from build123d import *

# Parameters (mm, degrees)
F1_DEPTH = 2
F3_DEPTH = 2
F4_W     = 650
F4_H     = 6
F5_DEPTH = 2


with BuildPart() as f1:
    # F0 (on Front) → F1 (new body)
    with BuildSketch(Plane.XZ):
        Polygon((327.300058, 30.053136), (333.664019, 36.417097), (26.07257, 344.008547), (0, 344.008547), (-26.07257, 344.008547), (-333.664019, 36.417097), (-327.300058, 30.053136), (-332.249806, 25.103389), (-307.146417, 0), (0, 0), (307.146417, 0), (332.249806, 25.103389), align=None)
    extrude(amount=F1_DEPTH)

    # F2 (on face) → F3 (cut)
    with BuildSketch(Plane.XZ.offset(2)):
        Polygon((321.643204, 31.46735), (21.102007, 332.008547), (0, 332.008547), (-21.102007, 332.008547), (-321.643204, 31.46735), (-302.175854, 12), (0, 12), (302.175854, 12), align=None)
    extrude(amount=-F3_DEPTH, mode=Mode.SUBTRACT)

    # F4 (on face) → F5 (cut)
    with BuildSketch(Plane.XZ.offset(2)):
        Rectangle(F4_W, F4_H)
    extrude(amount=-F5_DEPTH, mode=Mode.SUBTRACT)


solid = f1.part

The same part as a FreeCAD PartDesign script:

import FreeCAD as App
import Part
import Sketcher

V = App.Vector

doc = App.newDocument("Part")
body = doc.addObject("PartDesign::Body", "Body")

sketch1 = doc.addObject("Sketcher::SketchObject", "Sketch")
body.addObject(sketch1)
sketch1.AttachmentSupport = (doc.XZ_Plane, [""])
sketch1.MapMode = "FlatFace"
sketch1.addGeometry([
    Part.LineSegment(V(327, 30, 0), V(334, 36, 0)),
    Part.LineSegment(V(334, 36, 0), V(26, 344, 0)),
    Part.LineSegment(V(26, 344, 0), V(-26, 344, 0)),
    Part.LineSegment(V(-26, 344, 0), V(-334, 36, 0)),
    Part.LineSegment(V(-334, 36, 0), V(-327, 30, 0)),
    Part.LineSegment(V(-327, 30, 0), V(-332, 25, 0)),
    Part.LineSegment(V(-332, 25, 0), V(-307, 0, 0)),
    Part.LineSegment(V(-307, 0, 0), V(307, 0, 0)),
    Part.LineSegment(V(307, 0, 0), V(332, 25, 0)),
    Part.LineSegment(V(332, 25, 0), V(327, 30, 0)),
], False)
sketch1.addConstraint([
    Sketcher.Constraint("Coincident", 0, 2, 1, 1),
    Sketcher.Constraint("Coincident", 1, 2, 2, 1),
    Sketcher.Constraint("Coincident", 2, 2, 3, 1),
    Sketcher.Constraint("Coincident", 3, 2, 4, 1),
    Sketcher.Constraint("Coincident", 4, 2, 5, 1),
    Sketcher.Constraint("Coincident", 5, 2, 6, 1),
    Sketcher.Constraint("Coincident", 6, 2, 7, 1),
    Sketcher.Constraint("Coincident", 7, 2, 8, 1),
    Sketcher.Constraint("Coincident", 8, 2, 9, 1),
    Sketcher.Constraint("Coincident", 9, 2, 0, 1),
    Sketcher.Constraint("Horizontal", 2),
    Sketcher.Constraint("Horizontal", 7),
    Sketcher.Constraint("Symmetric", 6, 2, 7, 2, -1, 1),
    Sketcher.Constraint("Symmetric", 0, 2, 3, 2, -2),
    Sketcher.Constraint("Symmetric", 5, 2, 8, 2, -2),
    Sketcher.Constraint("Symmetric", 4, 2, 9, 2, -2),
    Sketcher.Constraint("Perpendicular", 0, 1),
    Sketcher.Constraint("Perpendicular", 1, 3),
    Sketcher.Constraint("Perpendicular", 3, 4),
    Sketcher.Constraint("Perpendicular", 4, 5),
    Sketcher.Constraint("Perpendicular", 5, 6),
    Sketcher.Constraint("Distance", 0, 9.0),
    Sketcher.Constraint("Distance", 1, 435.0),
    Sketcher.Constraint("Distance", 5, 7.0),
    Sketcher.Constraint("DistanceX", 2, 2, 2, 1, 52.14514),
    Sketcher.Constraint("DistanceX", 7, 1, 7, 2, 614.292834),
])
pad1 = doc.addObject("PartDesign::Pad", "Pad")
body.addObject(pad1)
pad1.Profile = sketch1
pad1.Length = 2

sketch2 = doc.addObject("Sketcher::SketchObject", "Sketch001")
body.addObject(sketch2)
sketch2.AttachmentSupport = (doc.XZ_Plane, [""])
sketch2.MapMode = "FlatFace"
sketch2.AttachmentOffset = App.Placement(V(0, 0, 2), App.Rotation())
sketch2.addGeometry([
    Part.LineSegment(V(322, 31, 0), V(21, 332, 0)),
    Part.LineSegment(V(21, 332, 0), V(-21, 332, 0)),
    Part.LineSegment(V(-21, 332, 0), V(-322, 31, 0)),
    Part.LineSegment(V(-322, 31, 0), V(-302, 12, 0)),
    Part.LineSegment(V(-302, 12, 0), V(302, 12, 0)),
    Part.LineSegment(V(302, 12, 0), V(322, 31, 0)),
], False)
sketch2.addConstraint([
    Sketcher.Constraint("Coincident", 0, 2, 1, 1),
    Sketcher.Constraint("Coincident", 1, 2, 2, 1),
    Sketcher.Constraint("Coincident", 2, 2, 3, 1),
    Sketcher.Constraint("Coincident", 3, 2, 4, 1),
    Sketcher.Constraint("Coincident", 4, 2, 5, 1),
    Sketcher.Constraint("Coincident", 5, 2, 0, 1),
    Sketcher.Constraint("Horizontal", 1),
    Sketcher.Constraint("Horizontal", 4),
    Sketcher.Constraint("Symmetric", 2, 2, 5, 2, -2),
    Sketcher.Constraint("Perpendicular", 0, 2),
    Sketcher.Constraint("Perpendicular", 2, 3),
    Sketcher.Constraint("Perpendicular", 3, 5),
    Sketcher.Constraint("Equal", 0, 2),
    Sketcher.Constraint("DistanceY", -1, 1, 3, 2, 12.0),
    Sketcher.Constraint("DistanceX", 4, 1, 4, 2, 604.351708),
    Sketcher.Constraint("Distance", 3, 27.53099),
    Sketcher.Constraint("DistanceX", 1, 2, 1, 1, 42.204014),
])
pocket1 = doc.addObject("PartDesign::Pocket", "Pocket")
body.addObject(pocket1)
pocket1.Profile = sketch2
pocket1.Length = 2

sketch3 = doc.addObject("Sketcher::SketchObject", "Sketch002")
body.addObject(sketch3)
sketch3.AttachmentSupport = (doc.XZ_Plane, [""])
sketch3.MapMode = "FlatFace"
sketch3.AttachmentOffset = App.Placement(V(0, 0, 2), App.Rotation())
sketch3.addGeometry([
    Part.LineSegment(V(-325, 3, 0), V(-325, -3, 0)),
    Part.LineSegment(V(-325, -3, 0), V(325, -3, 0)),
    Part.LineSegment(V(325, -3, 0), V(325, 3, 0)),
    Part.LineSegment(V(325, 3, 0), V(-325, 3, 0)),
], False)
sketch3.addConstraint([
    Sketcher.Constraint("Coincident", 0, 2, 1, 1),
    Sketcher.Constraint("Coincident", 1, 2, 2, 1),
    Sketcher.Constraint("Coincident", 2, 2, 3, 1),
    Sketcher.Constraint("Coincident", 3, 2, 0, 1),
    Sketcher.Constraint("Vertical", 0),
    Sketcher.Constraint("Horizontal", 1),
    Sketcher.Constraint("Vertical", 2),
    Sketcher.Constraint("Horizontal", 3),
    Sketcher.Constraint("Symmetric", 0, 2, 2, 2, -1, 1),
    Sketcher.Constraint("DistanceX", 1, 1, 1, 2, 650.0),
    Sketcher.Constraint("DistanceY", 0, 2, 0, 1, 6.0),
])
pocket2 = doc.addObject("PartDesign::Pocket", "Pocket001")
body.addObject(pocket2)
pocket2.Profile = sketch3
pocket2.Length = 2

doc.recompute()
